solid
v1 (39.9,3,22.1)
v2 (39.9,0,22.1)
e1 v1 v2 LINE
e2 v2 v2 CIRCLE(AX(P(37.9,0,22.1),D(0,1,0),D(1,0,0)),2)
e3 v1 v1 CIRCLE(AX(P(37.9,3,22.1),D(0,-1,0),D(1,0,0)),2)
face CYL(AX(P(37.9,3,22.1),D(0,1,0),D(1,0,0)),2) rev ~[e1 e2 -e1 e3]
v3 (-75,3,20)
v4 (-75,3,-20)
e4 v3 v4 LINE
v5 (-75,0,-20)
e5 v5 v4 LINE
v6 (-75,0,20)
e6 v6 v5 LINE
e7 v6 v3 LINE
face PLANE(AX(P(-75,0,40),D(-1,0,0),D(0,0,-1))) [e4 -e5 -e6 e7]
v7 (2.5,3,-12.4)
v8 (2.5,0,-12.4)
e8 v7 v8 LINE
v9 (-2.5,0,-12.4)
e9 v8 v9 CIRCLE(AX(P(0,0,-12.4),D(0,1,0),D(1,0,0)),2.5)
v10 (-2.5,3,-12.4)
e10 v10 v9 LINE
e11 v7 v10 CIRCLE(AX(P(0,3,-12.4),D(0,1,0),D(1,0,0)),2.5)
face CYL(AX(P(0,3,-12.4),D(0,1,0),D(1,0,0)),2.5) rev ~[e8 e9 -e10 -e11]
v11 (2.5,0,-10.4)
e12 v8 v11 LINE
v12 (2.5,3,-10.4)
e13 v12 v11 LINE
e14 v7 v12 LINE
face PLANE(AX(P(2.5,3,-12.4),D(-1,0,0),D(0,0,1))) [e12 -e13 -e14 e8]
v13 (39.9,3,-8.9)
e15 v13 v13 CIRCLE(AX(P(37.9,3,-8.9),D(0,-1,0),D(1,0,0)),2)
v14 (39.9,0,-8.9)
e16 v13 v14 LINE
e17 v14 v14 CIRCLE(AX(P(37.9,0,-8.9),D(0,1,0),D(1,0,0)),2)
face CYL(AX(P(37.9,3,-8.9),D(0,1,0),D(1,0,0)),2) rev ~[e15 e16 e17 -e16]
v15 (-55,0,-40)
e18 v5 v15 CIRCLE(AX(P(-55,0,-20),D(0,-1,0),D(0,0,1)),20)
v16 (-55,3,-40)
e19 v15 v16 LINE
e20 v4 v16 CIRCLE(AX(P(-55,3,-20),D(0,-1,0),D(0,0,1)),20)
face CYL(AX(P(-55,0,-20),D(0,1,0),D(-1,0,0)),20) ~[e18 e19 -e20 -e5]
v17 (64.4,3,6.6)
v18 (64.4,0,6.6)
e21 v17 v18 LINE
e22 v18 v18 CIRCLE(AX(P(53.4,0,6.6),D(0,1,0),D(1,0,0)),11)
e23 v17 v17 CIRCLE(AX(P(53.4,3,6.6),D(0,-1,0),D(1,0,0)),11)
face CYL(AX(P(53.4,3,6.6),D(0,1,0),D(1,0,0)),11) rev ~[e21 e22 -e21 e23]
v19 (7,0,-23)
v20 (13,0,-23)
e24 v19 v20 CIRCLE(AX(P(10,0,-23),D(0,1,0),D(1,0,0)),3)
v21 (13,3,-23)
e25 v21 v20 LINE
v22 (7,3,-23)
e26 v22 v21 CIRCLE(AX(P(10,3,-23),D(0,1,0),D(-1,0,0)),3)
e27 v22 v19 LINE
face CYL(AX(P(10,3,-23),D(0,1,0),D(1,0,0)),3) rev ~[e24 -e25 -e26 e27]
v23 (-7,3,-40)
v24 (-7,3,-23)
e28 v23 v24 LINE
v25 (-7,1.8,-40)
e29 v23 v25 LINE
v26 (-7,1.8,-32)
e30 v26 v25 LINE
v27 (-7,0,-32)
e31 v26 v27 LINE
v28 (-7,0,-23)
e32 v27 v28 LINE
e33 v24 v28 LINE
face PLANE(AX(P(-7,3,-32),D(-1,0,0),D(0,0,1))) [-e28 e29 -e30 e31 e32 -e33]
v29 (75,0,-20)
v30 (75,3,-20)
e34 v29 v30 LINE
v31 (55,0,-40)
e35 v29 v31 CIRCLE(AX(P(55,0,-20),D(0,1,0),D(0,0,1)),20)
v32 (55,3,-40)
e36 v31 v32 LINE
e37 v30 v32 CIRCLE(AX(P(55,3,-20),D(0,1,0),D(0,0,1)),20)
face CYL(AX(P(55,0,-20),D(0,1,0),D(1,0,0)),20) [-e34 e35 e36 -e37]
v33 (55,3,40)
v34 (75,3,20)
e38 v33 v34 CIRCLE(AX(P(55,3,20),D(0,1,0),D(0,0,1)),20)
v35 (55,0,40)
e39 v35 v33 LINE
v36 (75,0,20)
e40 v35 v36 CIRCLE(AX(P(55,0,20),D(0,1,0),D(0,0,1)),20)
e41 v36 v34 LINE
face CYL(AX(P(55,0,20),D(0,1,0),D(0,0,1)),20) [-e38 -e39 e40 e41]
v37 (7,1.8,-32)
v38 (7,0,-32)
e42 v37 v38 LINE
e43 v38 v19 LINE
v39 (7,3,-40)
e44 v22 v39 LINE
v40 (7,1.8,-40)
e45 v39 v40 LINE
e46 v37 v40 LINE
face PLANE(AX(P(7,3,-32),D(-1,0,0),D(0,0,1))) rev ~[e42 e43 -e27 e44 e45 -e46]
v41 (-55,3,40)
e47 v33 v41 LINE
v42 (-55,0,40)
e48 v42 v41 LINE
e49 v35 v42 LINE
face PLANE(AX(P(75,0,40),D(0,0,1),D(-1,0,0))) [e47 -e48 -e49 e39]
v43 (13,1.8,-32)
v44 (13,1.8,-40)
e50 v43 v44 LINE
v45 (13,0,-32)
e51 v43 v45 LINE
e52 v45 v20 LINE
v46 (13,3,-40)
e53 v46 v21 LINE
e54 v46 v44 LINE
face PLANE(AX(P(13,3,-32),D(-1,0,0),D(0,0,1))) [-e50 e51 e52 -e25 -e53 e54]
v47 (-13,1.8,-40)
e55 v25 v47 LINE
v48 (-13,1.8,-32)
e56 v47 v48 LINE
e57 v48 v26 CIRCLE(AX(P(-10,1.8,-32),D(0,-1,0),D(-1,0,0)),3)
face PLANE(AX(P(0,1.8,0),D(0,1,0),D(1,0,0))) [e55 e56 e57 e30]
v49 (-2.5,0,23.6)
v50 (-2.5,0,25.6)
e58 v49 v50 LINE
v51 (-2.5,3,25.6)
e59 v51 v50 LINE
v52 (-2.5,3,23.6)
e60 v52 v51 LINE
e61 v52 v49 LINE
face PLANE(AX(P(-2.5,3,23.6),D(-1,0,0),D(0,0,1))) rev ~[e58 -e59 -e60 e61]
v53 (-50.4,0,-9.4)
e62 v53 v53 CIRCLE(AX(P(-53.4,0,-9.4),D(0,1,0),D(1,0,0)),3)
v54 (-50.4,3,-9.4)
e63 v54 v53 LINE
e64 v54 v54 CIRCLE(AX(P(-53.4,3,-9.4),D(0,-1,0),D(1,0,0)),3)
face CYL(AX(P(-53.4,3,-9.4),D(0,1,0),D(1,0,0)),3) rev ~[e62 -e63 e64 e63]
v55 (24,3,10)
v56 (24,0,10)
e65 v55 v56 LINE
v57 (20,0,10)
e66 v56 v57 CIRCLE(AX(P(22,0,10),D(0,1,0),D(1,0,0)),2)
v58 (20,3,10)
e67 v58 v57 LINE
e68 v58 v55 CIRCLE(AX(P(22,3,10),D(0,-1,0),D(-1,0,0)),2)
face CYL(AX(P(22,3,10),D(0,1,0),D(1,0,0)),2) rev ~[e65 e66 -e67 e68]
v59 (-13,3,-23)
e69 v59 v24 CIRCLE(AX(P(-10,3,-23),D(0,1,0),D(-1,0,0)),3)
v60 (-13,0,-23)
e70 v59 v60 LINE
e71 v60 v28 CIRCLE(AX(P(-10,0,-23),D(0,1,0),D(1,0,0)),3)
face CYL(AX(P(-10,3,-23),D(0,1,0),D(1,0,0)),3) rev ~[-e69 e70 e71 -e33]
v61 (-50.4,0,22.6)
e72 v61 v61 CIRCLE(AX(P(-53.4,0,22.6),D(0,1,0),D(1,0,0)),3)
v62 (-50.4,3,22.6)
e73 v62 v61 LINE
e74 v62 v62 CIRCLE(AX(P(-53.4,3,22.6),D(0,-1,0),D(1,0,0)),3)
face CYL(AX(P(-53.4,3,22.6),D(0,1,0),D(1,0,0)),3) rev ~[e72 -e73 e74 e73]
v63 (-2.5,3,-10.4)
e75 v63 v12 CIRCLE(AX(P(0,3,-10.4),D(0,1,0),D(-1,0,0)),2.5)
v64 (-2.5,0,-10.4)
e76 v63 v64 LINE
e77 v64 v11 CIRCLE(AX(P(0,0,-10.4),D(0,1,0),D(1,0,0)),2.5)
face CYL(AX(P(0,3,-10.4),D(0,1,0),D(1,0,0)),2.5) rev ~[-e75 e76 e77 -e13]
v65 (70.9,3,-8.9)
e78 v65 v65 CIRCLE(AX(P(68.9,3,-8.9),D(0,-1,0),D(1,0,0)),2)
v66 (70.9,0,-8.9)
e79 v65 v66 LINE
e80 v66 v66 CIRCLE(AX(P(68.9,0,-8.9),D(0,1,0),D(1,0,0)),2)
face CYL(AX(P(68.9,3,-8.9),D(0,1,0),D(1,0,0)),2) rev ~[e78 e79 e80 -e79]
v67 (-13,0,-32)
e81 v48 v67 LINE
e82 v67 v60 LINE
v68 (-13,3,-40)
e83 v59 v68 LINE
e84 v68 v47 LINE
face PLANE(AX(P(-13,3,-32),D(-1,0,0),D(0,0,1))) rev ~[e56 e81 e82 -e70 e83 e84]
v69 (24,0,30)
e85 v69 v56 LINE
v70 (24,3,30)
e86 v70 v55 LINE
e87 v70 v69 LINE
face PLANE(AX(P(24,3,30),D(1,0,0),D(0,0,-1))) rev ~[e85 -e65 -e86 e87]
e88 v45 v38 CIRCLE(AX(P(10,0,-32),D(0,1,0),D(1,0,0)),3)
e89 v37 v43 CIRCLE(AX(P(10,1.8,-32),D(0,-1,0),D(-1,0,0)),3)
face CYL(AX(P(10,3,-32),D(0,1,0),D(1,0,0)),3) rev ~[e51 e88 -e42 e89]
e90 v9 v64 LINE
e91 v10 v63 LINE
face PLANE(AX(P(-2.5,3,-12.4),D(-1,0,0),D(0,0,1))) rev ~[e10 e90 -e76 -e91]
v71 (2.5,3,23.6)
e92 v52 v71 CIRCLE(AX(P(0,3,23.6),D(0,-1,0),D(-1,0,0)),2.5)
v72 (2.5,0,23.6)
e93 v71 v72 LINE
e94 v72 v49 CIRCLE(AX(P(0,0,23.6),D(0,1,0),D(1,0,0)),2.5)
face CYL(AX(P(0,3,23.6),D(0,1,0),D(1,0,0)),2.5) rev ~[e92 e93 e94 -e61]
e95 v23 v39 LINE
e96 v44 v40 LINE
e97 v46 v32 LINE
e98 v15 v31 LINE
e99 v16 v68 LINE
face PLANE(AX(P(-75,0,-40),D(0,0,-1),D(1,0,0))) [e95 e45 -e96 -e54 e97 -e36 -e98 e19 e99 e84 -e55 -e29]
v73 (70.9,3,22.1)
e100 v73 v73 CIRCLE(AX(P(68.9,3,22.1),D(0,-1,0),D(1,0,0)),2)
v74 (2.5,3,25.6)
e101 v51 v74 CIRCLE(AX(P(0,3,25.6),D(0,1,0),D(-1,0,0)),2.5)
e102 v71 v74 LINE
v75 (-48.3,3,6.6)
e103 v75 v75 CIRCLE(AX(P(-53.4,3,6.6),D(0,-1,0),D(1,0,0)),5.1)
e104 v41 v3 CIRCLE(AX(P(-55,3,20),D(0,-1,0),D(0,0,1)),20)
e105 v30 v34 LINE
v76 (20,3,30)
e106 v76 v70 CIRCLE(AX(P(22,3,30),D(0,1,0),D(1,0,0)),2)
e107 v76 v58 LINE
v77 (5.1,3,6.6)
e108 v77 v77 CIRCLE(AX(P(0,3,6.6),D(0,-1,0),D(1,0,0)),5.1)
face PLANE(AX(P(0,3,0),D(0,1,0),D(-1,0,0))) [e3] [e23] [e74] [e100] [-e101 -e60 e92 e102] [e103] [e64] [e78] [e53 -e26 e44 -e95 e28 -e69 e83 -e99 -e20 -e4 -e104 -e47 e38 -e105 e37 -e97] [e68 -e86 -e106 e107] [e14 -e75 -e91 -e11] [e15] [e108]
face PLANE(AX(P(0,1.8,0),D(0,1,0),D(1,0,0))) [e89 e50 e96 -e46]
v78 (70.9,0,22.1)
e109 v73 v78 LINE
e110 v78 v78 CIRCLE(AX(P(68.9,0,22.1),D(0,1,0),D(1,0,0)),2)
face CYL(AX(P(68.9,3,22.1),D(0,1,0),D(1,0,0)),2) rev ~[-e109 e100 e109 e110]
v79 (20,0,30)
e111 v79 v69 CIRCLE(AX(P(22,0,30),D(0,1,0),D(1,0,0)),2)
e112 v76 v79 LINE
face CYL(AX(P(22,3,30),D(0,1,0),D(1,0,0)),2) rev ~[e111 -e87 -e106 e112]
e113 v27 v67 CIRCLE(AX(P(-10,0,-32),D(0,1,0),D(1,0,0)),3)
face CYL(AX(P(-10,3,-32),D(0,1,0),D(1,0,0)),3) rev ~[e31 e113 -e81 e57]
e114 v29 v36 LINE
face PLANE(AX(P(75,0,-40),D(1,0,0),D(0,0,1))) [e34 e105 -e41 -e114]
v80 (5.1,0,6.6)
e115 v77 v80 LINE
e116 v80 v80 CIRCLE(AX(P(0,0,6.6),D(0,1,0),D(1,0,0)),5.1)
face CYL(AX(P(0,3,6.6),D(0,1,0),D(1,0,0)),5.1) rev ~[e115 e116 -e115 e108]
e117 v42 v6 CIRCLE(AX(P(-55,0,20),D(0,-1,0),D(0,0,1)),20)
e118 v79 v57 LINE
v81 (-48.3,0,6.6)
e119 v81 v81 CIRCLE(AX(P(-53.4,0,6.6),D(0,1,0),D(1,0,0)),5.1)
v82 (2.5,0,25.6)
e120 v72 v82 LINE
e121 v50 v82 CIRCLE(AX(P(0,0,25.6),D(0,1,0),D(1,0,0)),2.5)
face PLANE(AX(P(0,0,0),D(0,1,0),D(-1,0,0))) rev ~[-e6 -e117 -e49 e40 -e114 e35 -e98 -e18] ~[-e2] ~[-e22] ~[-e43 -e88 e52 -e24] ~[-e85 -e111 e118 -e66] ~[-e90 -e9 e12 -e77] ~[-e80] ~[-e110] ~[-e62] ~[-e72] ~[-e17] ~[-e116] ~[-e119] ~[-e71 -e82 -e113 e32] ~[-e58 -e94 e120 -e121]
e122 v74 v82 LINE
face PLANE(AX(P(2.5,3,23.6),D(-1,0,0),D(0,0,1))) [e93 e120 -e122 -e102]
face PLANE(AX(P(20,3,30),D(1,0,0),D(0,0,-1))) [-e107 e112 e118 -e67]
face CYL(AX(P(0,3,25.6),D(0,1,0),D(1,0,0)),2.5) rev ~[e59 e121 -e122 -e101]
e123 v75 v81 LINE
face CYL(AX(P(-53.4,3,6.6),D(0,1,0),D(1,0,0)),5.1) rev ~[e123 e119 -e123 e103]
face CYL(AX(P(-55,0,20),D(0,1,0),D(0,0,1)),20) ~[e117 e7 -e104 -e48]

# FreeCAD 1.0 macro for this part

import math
import FreeCAD as App
import Part
import Sketcher
from FreeCAD import Vector
Q = App.Units.Quantity


def edges_at(feature, points):
    """Names of the edges that pass closest to the given points."""
    edges = feature.Shape.Edges
    near = lambda p: min(range(len(edges)), key=lambda i: edges[i].distToShape(Part.Vertex(*p))[0])
    return sorted({f"Edge{near(p) + 1}" for p in points})


def add_polygon(sketch, points):
    """Adds a closed chain of lines whose ends are joined by coincident constraints."""
    first, n = sketch.GeometryCount, len(points)
    for a, b in zip(points, points[1:] + points[:1]):
        sketch.addGeometry(Part.LineSegment(App.Vector(*a, 0), App.Vector(*b, 0)), False)
    for i in range(n):
        sketch.addConstraint(Sketcher.Constraint("Coincident", first + i, 2, first + (i + 1) % n, 1))

doc = App.newDocument("Part")
body = doc.addObject("PartDesign::Body", "Body")

# Sketch on XZ plane
sketch1 = body.newObject("Sketcher::SketchObject", "Sketch")
sketch1.AttachmentSupport = (doc.getObject("XZ_Plane"), [""])
sketch1.MapMode = "FlatFace"
add_polygon(sketch1, [(-75, 40), (75, 40), (75, -40), (-75, -40)])  # lines 0-3
sketch1.addConstraint([
    Sketcher.Constraint("Horizontal", 0),
    Sketcher.Constraint("Vertical", 1),
    Sketcher.Constraint("Horizontal", 2),
    Sketcher.Constraint("Vertical", 3),
    Sketcher.Constraint("Symmetric", 0, 2, 2, 2, -1, 1),
    Sketcher.Constraint("DistanceX", 0, 1, 0, 2, Q("150 mm")),
    Sketcher.Constraint("DistanceY", 1, 2, 1, 1, Q("80 mm")),
])
pad1 = body.newObject("PartDesign::Pad", "Pad")
pad1.Profile = sketch1
pad1.Length = 3
pad1.Reversed = True

# Sketch on XZ plane
sketch2 = body.newObject("Sketcher::SketchObject", "Sketch001")
sketch2.AttachmentSupport = (doc.getObject("XZ_Plane"), [""])
sketch2.MapMode = "FlatFace"
sketch2.AttachmentOffset = App.Placement(Vector(0, 0, -3), App.Rotation())
sketch2.addGeometry([
    Part.ArcOfCircle(Part.Circle(Vector(10, -32, 0), Vector(0, 0, 1), 3), math.radians(180), math.radians(360)),  # 0
    Part.LineSegment(Vector(7, -32, 0), Vector(7, -23, 0)),  # 1
    Part.ArcOfCircle(Part.Circle(Vector(10, -23, 0), Vector(0, 0, 1), 3), math.radians(0), math.radians(180)),  # 2
    Part.LineSegment(Vector(13, -23, 0), Vector(13, -32, 0)),  # 3
    Part.ArcOfCircle(Part.Circle(Vector(-10, -32, 0), Vector(0, 0, 1), 3), math.radians(180), math.radians(360)),  # 4
    Part.LineSegment(Vector(-13, -32, 0), Vector(-13, -23, 0)),  # 5
    Part.ArcOfCircle(Part.Circle(Vector(-10, -23, 0), Vector(0, 0, 1), 3), math.radians(0), math.radians(180)),  # 6
    Part.LineSegment(Vector(-7, -23, 0), Vector(-7, -32, 0)),  # 7
], False)
sketch2.addConstraint([
    Sketcher.Constraint("Tangent", 0, 1, 1, 1),
    Sketcher.Constraint("Tangent", 1, 2, 2, 2),
    Sketcher.Constraint("Tangent", 2, 1, 3, 1),
    Sketcher.Constraint("Tangent", 3, 2, 0, 2),
    Sketcher.Constraint("Tangent", 4, 1, 5, 1),
    Sketcher.Constraint("Tangent", 5, 2, 6, 2),
    Sketcher.Constraint("Tangent", 6, 1, 7, 1),
    Sketcher.Constraint("Tangent", 7, 2, 4, 2),
    Sketcher.Constraint("Vertical", 1),
    Sketcher.Constraint("Vertical", 3),
    Sketcher.Constraint("Vertical", 5),
    Sketcher.Constraint("Vertical", 7),
    Sketcher.Constraint("Equal", 2, 4),
    Sketcher.Constraint("Symmetric", 0, 3, 4, 3, -2),
    Sketcher.Constraint("Horizontal", 2, 3, 6, 3),
    Sketcher.Constraint("Radius", 0, Q("3 mm")),
    Sketcher.Constraint("DistanceX", 4, 3, 0, 3, Q("20 mm")),
    Sketcher.Constraint("DistanceY", 1, 1, 1, 2, Q("9 mm")),
    Sketcher.Constraint("DistanceY", 0, 3, -1, 1, Q("32 mm")),
])
pocket1 = body.newObject("PartDesign::Pocket", "Pocket")
pocket1.Profile = sketch2
pocket1.Type = "ThroughAll"
pocket1.Reversed = True

# Sketch on XZ plane
sketch3 = body.newObject("Sketcher::SketchObject", "Sketch002")
sketch3.AttachmentSupport = (doc.getObject("XZ_Plane"), [""])
sketch3.MapMode = "FlatFace"
sketch3.AttachmentOffset = App.Placement(Vector(0, 0, -3), App.Rotation())
sketch3.addGeometry([
    Part.Circle(Vector(68.9, -8.9, 0), Vector(0, 0, 1), 2),  # 0
    Part.Circle(Vector(37.9, -8.9, 0), Vector(0, 0, 1), 2),  # 1
    Part.Circle(Vector(68.9, 22.1, 0), Vector(0, 0, 1), 2),  # 2
    Part.Circle(Vector(37.9, 22.1, 0), Vector(0, 0, 1), 2),  # 3
    Part.Circle(Vector(53.4, 6.6, 0), Vector(0, 0, 1), 11),  # 4
], False)
sketch3.addConstraint([
    Sketcher.Constraint("Equal", 0, 1),
    Sketcher.Constraint("Equal", 1, 2),
    Sketcher.Constraint("Equal", 2, 3),
    Sketcher.Constraint("Horizontal", 0, 3, 1, 3),
    Sketcher.Constraint("Horizontal", 2, 3, 3, 3),
    Sketcher.Constraint("Vertical", 0, 3, 2, 3),
    Sketcher.Constraint("Vertical", 1, 3, 3, 3),
    Sketcher.Constraint("Diameter", 0, Q("4 mm")),
    Sketcher.Constraint("Diameter", 4, Q("22 mm")),
    Sketcher.Constraint("DistanceX", 1, 3, 0, 3, Q("31 mm")),
    Sketcher.Constraint("DistanceY", 0, 3, 2, 3, Q("31 mm")),
    Sketcher.Constraint("DistanceX", -1, 1, 0, 3, Q("68.9 mm")),
    Sketcher.Constraint("DistanceY", 0, 3, -1, 1, Q("8.9 mm")),
    Sketcher.Constraint("DistanceX", -1, 1, 4, 3, Q("53.4 mm")),
    Sketcher.Constraint("DistanceY", -1, 1, 4, 3, Q("6.6 mm")),
])
pocket2 = body.newObject("PartDesign::Pocket", "Pocket001")
pocket2.Profile = sketch3
pocket2.Type = "ThroughAll"
pocket2.Reversed = True

# Sketch on XZ plane
sketch4 = body.newObject("Sketcher::SketchObject", "Sketch003")
sketch4.AttachmentSupport = (doc.getObject("XZ_Plane"), [""])
sketch4.MapMode = "FlatFace"
sketch4.AttachmentOffset = App.Placement(Vector(0, 0, -3), App.Rotation())
sketch4.addGeometry([
    Part.LineSegment(Vector(13, -32, 0), Vector(13, -40, 0)),  # 0
    Part.LineSegment(Vector(13, -40, 0), Vector(7, -40, 0)),  # 1
    Part.LineSegment(Vector(7, -40, 0), Vector(7, -32, 0)),  # 2
    Part.ArcOfCircle(Part.Circle(Vector(10, -32, 0), Vector(0, 0, 1), 3), math.radians(180), math.radians(360)),  # 3
    Part.LineSegment(Vector(-7, -32, 0), Vector(-7, -40, 0)),  # 4
    Part.LineSegment(Vector(-7, -40, 0), Vector(-13, -40, 0)),  # 5
    Part.LineSegment(Vector(-13, -40, 0), Vector(-13, -32, 0)),  # 6
    Part.ArcOfCircle(Part.Circle(Vector(-10, -32, 0), Vector(0, 0, 1), 3), math.radians(180), math.radians(360)),  # 7
], False)
sketch4.addConstraint([
    Sketcher.Constraint("Coincident", 0, 2, 1, 1),
    Sketcher.Constraint("Coincident", 1, 2, 2, 1),
    Sketcher.Constraint("Tangent", 2, 2, 3, 1),
    Sketcher.Constraint("Tangent", 3, 2, 0, 1),
    Sketcher.Constraint("Coincident", 4, 2, 5, 1),
    Sketcher.Constraint("Coincident", 5, 2, 6, 1),
    Sketcher.Constraint("Tangent", 6, 2, 7, 1),
    Sketcher.Constraint("Tangent", 7, 2, 4, 1),
    Sketcher.Constraint("Vertical", 0),
    Sketcher.Constraint("Horizontal", 1),
    Sketcher.Constraint("Vertical", 2),
    Sketcher.Constraint("Vertical", 4),
    Sketcher.Constraint("Horizontal", 5),
    Sketcher.Constraint("Vertical", 6),
    Sketcher.Constraint("Equal", 3, 7),
    Sketcher.Constraint("Symmetric", 3, 3, 7, 3, -2),
    Sketcher.Constraint("Horizontal", 1, 2, 4, 2),
    Sketcher.Constraint("Radius", 3, Q("3 mm")),
    Sketcher.Constraint("DistanceX", 7, 3, 3, 3, Q("20 mm")),
    Sketcher.Constraint("DistanceY", 0, 2, 0, 1, Q("8 mm")),
    Sketcher.Constraint("DistanceY", 3, 3, -1, 1, Q("32 mm")),
])
pocket3 = body.newObject("PartDesign::Pocket", "Pocket002")
pocket3.Profile = sketch4
pocket3.Length = 1.2
pocket3.Reversed = True

# Sketch on XZ plane
sketch5 = body.newObject("Sketcher::SketchObject", "Sketch004")
sketch5.AttachmentSupport = (doc.getObject("XZ_Plane"), [""])
sketch5.MapMode = "FlatFace"
sketch5.AttachmentOffset = App.Placement(Vector(0, 0, -3), App.Rotation())
sketch5.addGeometry([
    Part.ArcOfCircle(Part.Circle(Vector(0, -12.4, 0), Vector(0, 0, 1), 2.5), math.radians(180), math.radians(360)),  # 0
    Part.LineSegment(Vector(-2.5, -12.4, 0), Vector(-2.5, -10.4, 0)),  # 1
    Part.ArcOfCircle(Part.Circle(Vector(0, -10.4, 0), Vector(0, 0, 1), 2.5), math.radians(0), math.radians(180)),  # 2
    Part.LineSegment(Vector(2.5, -10.4, 0), Vector(2.5, -12.4, 0)),  # 3
    Part.Circle(Vector(-53.4, 22.6, 0), Vector(0, 0, 1), 3),  # 4
    Part.Circle(Vector(-53.4, -9.4, 0), Vector(0, 0, 1), 3),  # 5
    Part.Circle(Vector(-53.4, 6.6, 0), Vector(0, 0, 1), 5.1),  # 6
    Part.Circle(Vector(0, 6.6, 0), Vector(0, 0, 1), 5.1),  # 7
    Part.ArcOfCircle(Part.Circle(Vector(0, 23.6, 0), Vector(0, 0, 1), 2.5), math.radians(180), math.radians(360)),  # 8
    Part.LineSegment(Vector(-2.5, 23.6, 0), Vector(-2.5, 25.6, 0)),  # 9
    Part.ArcOfCircle(Part.Circle(Vector(0, 25.6, 0), Vector(0, 0, 1), 2.5), math.radians(0), math.radians(180)),  # 10
    Part.LineSegment(Vector(2.5, 25.6, 0), Vector(2.5, 23.6, 0)),  # 11
], False)
sketch5.addConstraint([
    Sketcher.Constraint("Tangent", 0, 1, 1, 1),
    Sketcher.Constraint("Tangent", 1, 2, 2, 2),
    Sketcher.Constraint("Tangent", 2, 1, 3, 1),
    Sketcher.Constraint("Tangent", 3, 2, 0, 2),
    Sketcher.Constraint("Tangent", 8, 1, 9, 1),
    Sketcher.Constraint("Tangent", 9, 2, 10, 2),
    Sketcher.Constraint("Tangent", 10, 1, 11, 1),
    Sketcher.Constraint("Tangent", 11, 2, 8, 2),
    Sketcher.Constraint("Vertical", 1),
    Sketcher.Constraint("Vertical", 3),
    Sketcher.Constraint("Vertical", 9),
    Sketcher.Constraint("Vertical", 11),
    Sketcher.Constraint("Equal", 4, 5),
    Sketcher.Constraint("Equal", 6, 7),
    Sketcher.Constraint("Equal", 2, 8),
    Sketcher.Constraint("PointOnObject", 0, 3, -2),
    Sketcher.Constraint("PointOnObject", 7, 3, -2),
    Sketcher.Constraint("PointOnObject", 8, 3, -2),
    Sketcher.Constraint("Horizontal", 6, 3, 7, 3),
    Sketcher.Constraint("Vertical", 4, 3, 5, 3),
    Sketcher.Constraint("Vertical", 5, 3, 6, 3),
    Sketcher.Constraint("Equal", 3, 9),
    Sketcher.Constraint("Diameter", 4, Q("6 mm")),
    Sketcher.Constraint("Diameter", 6, Q("10.2 mm")),
    Sketcher.Constraint("Radius", 0, Q("2.5 mm")),
    Sketcher.Constraint("DistanceY", 1, 1, 1, 2, Q("2 mm")),
    Sketcher.Constraint("DistanceY", 5, 3, 4, 3, Q("32 mm")),
    Sketcher.Constraint("DistanceY", 0, 3, 10, 3, Q("38 mm")),
    Sketcher.Constraint("DistanceX", 4, 3, -1, 1, Q("53.4 mm")),
    Sketcher.Constraint("DistanceY", 2, 3, 4, 3, Q("33 mm")),
    Sketcher.Constraint("DistanceY", 6, 3, 4, 3, Q("16 mm")),
    Sketcher.Constraint("DistanceY", 0, 3, -1, 1, Q("12.4 mm")),
])
pocket4 = body.newObject("PartDesign::Pocket", "Pocket003")
pocket4.Profile = sketch5
pocket4.Type = "ThroughAll"
pocket4.Reversed = True
doc.recompute()

fillet = body.newObject("PartDesign::Fillet", "Fillet")
fillet.Base = (pocket4, edges_at(pocket4, [
    (75, 1.5, 40),
    (75, 1.5, -40),
    (-75, 1.5, 40),
    (-75, 1.5, -40),
]))
fillet.Radius = 20

# Sketch on XZ plane
sketch6 = body.newObject("Sketcher::SketchObject", "Sketch005")
sketch6.AttachmentSupport = (doc.getObject("XZ_Plane"), [""])
sketch6.MapMode = "FlatFace"
sketch6.AttachmentOffset = App.Placement(Vector(0, 0, -3), App.Rotation())
sketch6.addGeometry([
    Part.LineSegment(Vector(20, 10, 0), Vector(20, 30, 0)),
    Part.ArcOfCircle(Part.Circle(Vector(22, 30, 0), Vector(0, 0, 1), 2), math.radians(0), math.radians(180)),
    Part.LineSegment(Vector(24, 30, 0), Vector(24, 10, 0)),
    Part.ArcOfCircle(Part.Circle(Vector(22, 10, 0), Vector(0, 0, 1), 2), math.radians(180), math.radians(360)),
], False)
sketch6.addConstraint([
    Sketcher.Constraint("Tangent", 0, 2, 1, 2),
    Sketcher.Constraint("Tangent", 1, 1, 2, 1),
    Sketcher.Constraint("Tangent", 2, 2, 3, 2),
    Sketcher.Constraint("Tangent", 3, 1, 0, 1),
    Sketcher.Constraint("Vertical", 0),
    Sketcher.Constraint("Vertical", 2),
    Sketcher.Constraint("Radius", 1, Q("2 mm")),
    Sketcher.Constraint("DistanceY", 0, 1, 0, 2, Q("20 mm")),
    Sketcher.Constraint("DistanceX", -1, 1, 1, 3, Q("22 mm")),
    Sketcher.Constraint("DistanceY", -1, 1, 1, 3, Q("30 mm")),
])
pocket5 = body.newObject("PartDesign::Pocket", "Pocket004")
pocket5.Profile = sketch6
pocket5.Type = "ThroughAll"
pocket5.Reversed = True

doc.recompute()
